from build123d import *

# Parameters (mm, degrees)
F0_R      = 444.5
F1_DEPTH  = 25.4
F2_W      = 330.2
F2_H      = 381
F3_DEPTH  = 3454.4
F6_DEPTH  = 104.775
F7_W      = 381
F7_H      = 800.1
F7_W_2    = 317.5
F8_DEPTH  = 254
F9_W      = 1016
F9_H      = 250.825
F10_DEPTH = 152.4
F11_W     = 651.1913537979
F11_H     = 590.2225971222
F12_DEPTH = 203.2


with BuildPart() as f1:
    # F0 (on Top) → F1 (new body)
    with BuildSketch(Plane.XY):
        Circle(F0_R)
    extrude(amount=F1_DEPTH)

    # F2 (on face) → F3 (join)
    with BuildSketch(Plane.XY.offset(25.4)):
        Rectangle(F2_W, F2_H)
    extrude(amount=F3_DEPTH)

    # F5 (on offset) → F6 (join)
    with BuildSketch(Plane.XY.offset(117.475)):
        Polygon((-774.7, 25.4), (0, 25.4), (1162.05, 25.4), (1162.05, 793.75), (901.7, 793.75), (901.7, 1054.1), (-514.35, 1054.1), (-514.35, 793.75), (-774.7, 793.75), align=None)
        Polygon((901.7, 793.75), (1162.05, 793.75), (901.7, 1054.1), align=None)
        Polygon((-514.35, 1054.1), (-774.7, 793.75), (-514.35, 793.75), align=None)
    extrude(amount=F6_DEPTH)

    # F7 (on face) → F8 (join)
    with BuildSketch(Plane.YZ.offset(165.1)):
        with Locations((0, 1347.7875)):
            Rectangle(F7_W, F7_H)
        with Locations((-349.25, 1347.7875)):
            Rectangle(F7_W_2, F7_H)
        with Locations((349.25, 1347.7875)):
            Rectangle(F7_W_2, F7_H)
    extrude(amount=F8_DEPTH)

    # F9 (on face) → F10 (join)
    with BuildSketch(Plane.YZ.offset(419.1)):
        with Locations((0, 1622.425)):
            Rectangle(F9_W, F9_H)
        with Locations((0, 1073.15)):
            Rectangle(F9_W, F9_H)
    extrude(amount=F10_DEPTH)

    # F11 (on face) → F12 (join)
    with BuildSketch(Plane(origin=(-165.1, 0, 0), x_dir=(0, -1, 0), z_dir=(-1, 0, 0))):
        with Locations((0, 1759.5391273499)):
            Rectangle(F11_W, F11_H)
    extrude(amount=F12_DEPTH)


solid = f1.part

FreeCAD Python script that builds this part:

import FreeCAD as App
import Part
import Sketcher

V = App.Vector
Q = App.Units.Quantity

doc = App.newDocument("Part")
body = doc.addObject("PartDesign::Body", "Body")

# Sketch on XY plane
sketch1 = body.newObject("Sketcher::SketchObject", "Sketch")
sketch1.AttachmentSupport = (doc.getObject("XY_Plane"), [""])
sketch1.MapMode = "FlatFace"
sketch1.addGeometry(Part.Circle(V(0, 0, 0), V(0, 0, 1), 444.5), False)
sketch1.addConstraint([
    Sketcher.Constraint("Coincident", 0, 3, -1, 1),
    Sketcher.Constraint("Diameter", 0, Q("35 in")),
])
pad1 = body.newObject("PartDesign::Pad", "Pad")
pad1.Profile = sketch1
pad1.Length = Q("1 in")

# Sketch on XY plane
sketch2 = body.newObject("Sketcher::SketchObject", "Sketch001")
sketch2.AttachmentSupport = (doc.getObject("XY_Plane"), [""])
sketch2.MapMode = "FlatFace"
sketch2.AttachmentOffset = App.Placement(V(0, 0, 1 * 25.4), App.Rotation())
sketch2.addGeometry([
    Part.LineSegment(V(-165.1, 190.5, 0), V(-165.1, -190.5, 0)),
    Part.LineSegment(V(-165.1, -190.5, 0), V(165.1, -190.5, 0)),
    Part.LineSegment(V(165.1, -190.5, 0), V(165.1, 190.5, 0)),
    Part.LineSegment(V(165.1, 190.5, 0), V(-165.1, 190.5, 0)),
], False)
sketch2.addConstraint([
    Sketcher.Constraint("Coincident", 0, 2, 1, 1),
    Sketcher.Constraint("Coincident", 1, 2, 2, 1),
    Sketcher.Constraint("Coincident", 2, 2, 3, 1),
    Sketcher.Constraint("Coincident", 3, 2, 0, 1),
    Sketcher.Constraint("Vertical", 0),
    Sketcher.Constraint("Horizontal", 1),
    Sketcher.Constraint("Vertical", 2),
    Sketcher.Constraint("Horizontal", 3),
    Sketcher.Constraint("Symmetric", 0, 2, 2, 2, -1, 1),
    Sketcher.Constraint("DistanceX", 1, 1, 1, 2, Q("13 in")),
    Sketcher.Constraint("DistanceY", 0, 2, 0, 1, Q("15 in")),
])
pad2 = body.newObject("PartDesign::Pad", "Pad001")
pad2.Profile = sketch2
pad2.Length = Q("136 in")

# Sketch on XY plane
sketch3 = body.newObject("Sketcher::SketchObject", "Sketch002")
sketch3.AttachmentSupport = (doc.getObject("XY_Plane"), [""])
sketch3.MapMode = "FlatFace"
sketch3.AttachmentOffset = App.Placement(V(0, 0, 4.625 * 25.4), App.Rotation())
sketch3.addGeometry([
    Part.LineSegment(V(-774.7, 25.4, 0), V(1162.05, 25.4, 0)),  # 0
    Part.LineSegment(V(1162.05, 25.4, 0), V(1162.05, 793.75, 0)),  # 1
    Part.LineSegment(V(1162.05, 793.75, 0), V(901.7, 1054.1, 0)),  # 2
    Part.LineSegment(V(901.7, 1054.1, 0), V(-514.35, 1054.1, 0)),  # 3
    Part.LineSegment(V(-514.35, 1054.1, 0), V(-774.7, 793.75, 0)),  # 4
    Part.LineSegment(V(-774.7, 793.75, 0), V(-774.7, 25.4, 0)),  # 5
], False)
sketch3.addConstraint([
    Sketcher.Constraint("Coincident", 0, 2, 1, 1),
    Sketcher.Constraint("Coincident", 1, 2, 2, 1),
    Sketcher.Constraint("Coincident", 2, 2, 3, 1),
    Sketcher.Constraint("Coincident", 3, 2, 4, 1),
    Sketcher.Constraint("Coincident", 4, 2, 5, 1),
    Sketcher.Constraint("Coincident", 5, 2, 0, 1),
    Sketcher.Constraint("Horizontal", 0),
    Sketcher.Constraint("Vertical", 1),
    Sketcher.Constraint("Horizontal", 3),
    Sketcher.Constraint("Vertical", 5),
    Sketcher.Constraint("Perpendicular", 2, 4),
    Sketcher.Constraint("Horizontal", 1, 2, 4, 2),
    Sketcher.Constraint("Equal", 2, 4),
    Sketcher.Constraint("DistanceY", -1, 1, 0, 2, Q("1 in")),
    Sketcher.Constraint("DistanceX", 3, 2, 1, 2, Q("66 in")),
    Sketcher.Constraint("DistanceX", 0, 1, 0, 2, Q("76.25 in")),
    Sketcher.Constraint("DistanceY", 1, 1, 1, 2, Q("30.25 in")),
    Sketcher.Constraint("DistanceX", -1, 1, 2, 2, Q("35.5 in")),
])
pad3 = body.newObject("PartDesign::Pad", "Pad002")
pad3.Profile = sketch3
pad3.Length = Q("4.125 in")

# Sketch on YZ plane
sketch4 = body.newObject("Sketcher::SketchObject", "Sketch003")
sketch4.AttachmentSupport = (doc.getObject("YZ_Plane"), [""])
sketch4.MapMode = "FlatFace"
sketch4.AttachmentOffset = App.Placement(V(0, 0, 6.5 * 25.4), App.Rotation())
sketch4.addGeometry([
    Part.LineSegment(V(-508, 1747.8375, 0), V(-508, 947.7375, 0)),
    Part.LineSegment(V(-508, 947.7375, 0), V(508, 947.7375, 0)),
    Part.LineSegment(V(508, 947.7375, 0), V(508, 1747.8375, 0)),
    Part.LineSegment(V(508, 1747.8375, 0), V(-508, 1747.8375, 0)),
], False)
sketch4.addConstraint([
    Sketcher.Constraint("Coincident", 0, 2, 1, 1),
    Sketcher.Constraint("Coincident", 1, 2, 2, 1),
    Sketcher.Constraint("Coincident", 2, 2, 3, 1),
    Sketcher.Constraint("Coincident", 3, 2, 0, 1),
    Sketcher.Constraint("Vertical", 0),
    Sketcher.Constraint("Horizontal", 1),
    Sketcher.Constraint("Vertical", 2),
    Sketcher.Constraint("Horizontal", 3),
    Sketcher.Constraint("DistanceX", 1, 1, 1, 2, Q("40 in")),
    Sketcher.Constraint("DistanceY", 0, 2, 0, 1, Q("31.5 in")),
    Sketcher.Constraint("DistanceX", 0, 2, -1, 1, Q("20 in")),
    Sketcher.Constraint("DistanceY", -1, 1, 0, 2, Q("37.3125 in")),
])
pad4 = body.newObject("PartDesign::Pad", "Pad003")
pad4.Profile = sketch4
pad4.Length = Q("10 in")

# Sketch on YZ plane
sketch5 = body.newObject("Sketcher::SketchObject", "Sketch004")
sketch5.AttachmentSupport = (doc.getObject("YZ_Plane"), [""])
sketch5.MapMode = "FlatFace"
sketch5.AttachmentOffset = App.Placement(V(0, 0, 16.5 * 25.4), App.Rotation())
sketch5.addGeometry([
    Part.LineSegment(V(-508, 1747.8375, 0), V(-508, 1497.0125, 0)),  # 0
    Part.LineSegment(V(-508, 1497.0125, 0), V(508, 1497.0125, 0)),  # 1
    Part.LineSegment(V(508, 1497.0125, 0), V(508, 1747.8375, 0)),  # 2
    Part.LineSegment(V(508, 1747.8375, 0), V(-508, 1747.8375, 0)),  # 3
    Part.LineSegment(V(-508, 1198.5625, 0), V(-508, 947.7375, 0)),  # 4
    Part.LineSegment(V(-508, 947.7375, 0), V(508, 947.7375, 0)),  # 5
    Part.LineSegment(V(508, 947.7375, 0), V(508, 1198.5625, 0)),  # 6
    Part.LineSegment(V(508, 1198.5625, 0), V(-508, 1198.5625, 0)),  # 7
], False)
sketch5.addConstraint([
    Sketcher.Constraint("Coincident", 0, 2, 1, 1),
    Sketcher.Constraint("Coincident", 1, 2, 2, 1),
    Sketcher.Constraint("Coincident", 2, 2, 3, 1),
    Sketcher.Constraint("Coincident", 3, 2, 0, 1),
    Sketcher.Constraint("Coincident", 4, 2, 5, 1),
    Sketcher.Constraint("Coincident", 5, 2, 6, 1),
    Sketcher.Constraint("Coincident", 6, 2, 7, 1),
    Sketcher.Constraint("Coincident", 7, 2, 4, 1),
    Sketcher.Constraint("Vertical", 0),
    Sketcher.Constraint("Horizontal", 1),
    Sketcher.Constraint("Vertical", 2),
    Sketcher.Constraint("Horizontal", 3),
    Sketcher.Constraint("Vertical", 4),
    Sketcher.Constraint("Horizontal", 5),
    Sketcher.Constraint("Vertical", 6),
    Sketcher.Constraint("Horizontal", 7),
    Sketcher.Constraint("Vertical", 3, 2, 4, 2),
    Sketcher.Constraint("Vertical", 2, 2, 5, 2),
    Sketcher.Constraint("Equal", 2, 4),
    Sketcher.Constraint("DistanceX", 1, 1, 1, 2, Q("40 in")),
    Sketcher.Constraint("DistanceX", 0, 2, -1, 1, Q("20 in")),
    Sketcher.Constraint("DistanceY", 4, 2, 3, 2, Q("31.5 in")),
    Sketcher.Constraint("DistanceY", 0, 2, 0, 1, Q("9.875 in")),
    Sketcher.Constraint("DistanceY", -1, 1, 0, 2, Q("58.9375 in")),
])
pad5 = body.newObject("PartDesign::Pad", "Pad004")
pad5.Profile = sketch5
pad5.Length = Q("6 in")

# Sketch on YZ plane
sketch6 = body.newObject("Sketcher::SketchObject", "Sketch005")
sketch6.AttachmentSupport = (doc.getObject("YZ_Plane"), [""])
sketch6.MapMode = "FlatFace"
sketch6.AttachmentOffset = App.Placement(V(0, 0, -6.5 * 25.4), App.Rotation())
sketch6.addGeometry([
    Part.LineSegment(V(325.595677, 2054.650426, 0), V(325.595677, 1464.427829, 0)),
    Part.LineSegment(V(325.595677, 1464.427829, 0), V(-325.595677, 1464.427829, 0)),
    Part.LineSegment(V(-325.595677, 1464.427829, 0), V(-325.595677, 2054.650426, 0)),
    Part.LineSegment(V(-325.595677, 2054.650426, 0), V(325.595677, 2054.650426, 0)),
], False)
sketch6.addConstraint([
    Sketcher.Constraint("Coincident", 0, 2, 1, 1),
    Sketcher.Constraint("Coincident", 1, 2, 2, 1),
    Sketcher.Constraint("Coincident", 2, 2, 3, 1),
    Sketcher.Constraint("Coincident", 3, 2, 0, 1),
    Sketcher.Constraint("Vertical", 0),
    Sketcher.Constraint("Horizontal", 1),
    Sketcher.Constraint("Vertical", 2),
    Sketcher.Constraint("Horizontal", 3),
    Sketcher.Constraint("DistanceX", 1, 2, 1, 1, Q("651.191354 mm")),
    Sketcher.Constraint("DistanceY", 0, 2, 0, 1, Q("590.222597 mm")),
    Sketcher.Constraint("DistanceY", -1, 1, 0, 2, Q("1464.427829 mm")),
    Sketcher.Constraint("DistanceX", -1, 1, 0, 2, Q("325.595677 mm")),
])
pad6 = body.newObject("PartDesign::Pad", "Pad005")
pad6.Profile = sketch6
pad6.Length = Q("8 in")
pad6.Reversed = True

doc.recompute()
